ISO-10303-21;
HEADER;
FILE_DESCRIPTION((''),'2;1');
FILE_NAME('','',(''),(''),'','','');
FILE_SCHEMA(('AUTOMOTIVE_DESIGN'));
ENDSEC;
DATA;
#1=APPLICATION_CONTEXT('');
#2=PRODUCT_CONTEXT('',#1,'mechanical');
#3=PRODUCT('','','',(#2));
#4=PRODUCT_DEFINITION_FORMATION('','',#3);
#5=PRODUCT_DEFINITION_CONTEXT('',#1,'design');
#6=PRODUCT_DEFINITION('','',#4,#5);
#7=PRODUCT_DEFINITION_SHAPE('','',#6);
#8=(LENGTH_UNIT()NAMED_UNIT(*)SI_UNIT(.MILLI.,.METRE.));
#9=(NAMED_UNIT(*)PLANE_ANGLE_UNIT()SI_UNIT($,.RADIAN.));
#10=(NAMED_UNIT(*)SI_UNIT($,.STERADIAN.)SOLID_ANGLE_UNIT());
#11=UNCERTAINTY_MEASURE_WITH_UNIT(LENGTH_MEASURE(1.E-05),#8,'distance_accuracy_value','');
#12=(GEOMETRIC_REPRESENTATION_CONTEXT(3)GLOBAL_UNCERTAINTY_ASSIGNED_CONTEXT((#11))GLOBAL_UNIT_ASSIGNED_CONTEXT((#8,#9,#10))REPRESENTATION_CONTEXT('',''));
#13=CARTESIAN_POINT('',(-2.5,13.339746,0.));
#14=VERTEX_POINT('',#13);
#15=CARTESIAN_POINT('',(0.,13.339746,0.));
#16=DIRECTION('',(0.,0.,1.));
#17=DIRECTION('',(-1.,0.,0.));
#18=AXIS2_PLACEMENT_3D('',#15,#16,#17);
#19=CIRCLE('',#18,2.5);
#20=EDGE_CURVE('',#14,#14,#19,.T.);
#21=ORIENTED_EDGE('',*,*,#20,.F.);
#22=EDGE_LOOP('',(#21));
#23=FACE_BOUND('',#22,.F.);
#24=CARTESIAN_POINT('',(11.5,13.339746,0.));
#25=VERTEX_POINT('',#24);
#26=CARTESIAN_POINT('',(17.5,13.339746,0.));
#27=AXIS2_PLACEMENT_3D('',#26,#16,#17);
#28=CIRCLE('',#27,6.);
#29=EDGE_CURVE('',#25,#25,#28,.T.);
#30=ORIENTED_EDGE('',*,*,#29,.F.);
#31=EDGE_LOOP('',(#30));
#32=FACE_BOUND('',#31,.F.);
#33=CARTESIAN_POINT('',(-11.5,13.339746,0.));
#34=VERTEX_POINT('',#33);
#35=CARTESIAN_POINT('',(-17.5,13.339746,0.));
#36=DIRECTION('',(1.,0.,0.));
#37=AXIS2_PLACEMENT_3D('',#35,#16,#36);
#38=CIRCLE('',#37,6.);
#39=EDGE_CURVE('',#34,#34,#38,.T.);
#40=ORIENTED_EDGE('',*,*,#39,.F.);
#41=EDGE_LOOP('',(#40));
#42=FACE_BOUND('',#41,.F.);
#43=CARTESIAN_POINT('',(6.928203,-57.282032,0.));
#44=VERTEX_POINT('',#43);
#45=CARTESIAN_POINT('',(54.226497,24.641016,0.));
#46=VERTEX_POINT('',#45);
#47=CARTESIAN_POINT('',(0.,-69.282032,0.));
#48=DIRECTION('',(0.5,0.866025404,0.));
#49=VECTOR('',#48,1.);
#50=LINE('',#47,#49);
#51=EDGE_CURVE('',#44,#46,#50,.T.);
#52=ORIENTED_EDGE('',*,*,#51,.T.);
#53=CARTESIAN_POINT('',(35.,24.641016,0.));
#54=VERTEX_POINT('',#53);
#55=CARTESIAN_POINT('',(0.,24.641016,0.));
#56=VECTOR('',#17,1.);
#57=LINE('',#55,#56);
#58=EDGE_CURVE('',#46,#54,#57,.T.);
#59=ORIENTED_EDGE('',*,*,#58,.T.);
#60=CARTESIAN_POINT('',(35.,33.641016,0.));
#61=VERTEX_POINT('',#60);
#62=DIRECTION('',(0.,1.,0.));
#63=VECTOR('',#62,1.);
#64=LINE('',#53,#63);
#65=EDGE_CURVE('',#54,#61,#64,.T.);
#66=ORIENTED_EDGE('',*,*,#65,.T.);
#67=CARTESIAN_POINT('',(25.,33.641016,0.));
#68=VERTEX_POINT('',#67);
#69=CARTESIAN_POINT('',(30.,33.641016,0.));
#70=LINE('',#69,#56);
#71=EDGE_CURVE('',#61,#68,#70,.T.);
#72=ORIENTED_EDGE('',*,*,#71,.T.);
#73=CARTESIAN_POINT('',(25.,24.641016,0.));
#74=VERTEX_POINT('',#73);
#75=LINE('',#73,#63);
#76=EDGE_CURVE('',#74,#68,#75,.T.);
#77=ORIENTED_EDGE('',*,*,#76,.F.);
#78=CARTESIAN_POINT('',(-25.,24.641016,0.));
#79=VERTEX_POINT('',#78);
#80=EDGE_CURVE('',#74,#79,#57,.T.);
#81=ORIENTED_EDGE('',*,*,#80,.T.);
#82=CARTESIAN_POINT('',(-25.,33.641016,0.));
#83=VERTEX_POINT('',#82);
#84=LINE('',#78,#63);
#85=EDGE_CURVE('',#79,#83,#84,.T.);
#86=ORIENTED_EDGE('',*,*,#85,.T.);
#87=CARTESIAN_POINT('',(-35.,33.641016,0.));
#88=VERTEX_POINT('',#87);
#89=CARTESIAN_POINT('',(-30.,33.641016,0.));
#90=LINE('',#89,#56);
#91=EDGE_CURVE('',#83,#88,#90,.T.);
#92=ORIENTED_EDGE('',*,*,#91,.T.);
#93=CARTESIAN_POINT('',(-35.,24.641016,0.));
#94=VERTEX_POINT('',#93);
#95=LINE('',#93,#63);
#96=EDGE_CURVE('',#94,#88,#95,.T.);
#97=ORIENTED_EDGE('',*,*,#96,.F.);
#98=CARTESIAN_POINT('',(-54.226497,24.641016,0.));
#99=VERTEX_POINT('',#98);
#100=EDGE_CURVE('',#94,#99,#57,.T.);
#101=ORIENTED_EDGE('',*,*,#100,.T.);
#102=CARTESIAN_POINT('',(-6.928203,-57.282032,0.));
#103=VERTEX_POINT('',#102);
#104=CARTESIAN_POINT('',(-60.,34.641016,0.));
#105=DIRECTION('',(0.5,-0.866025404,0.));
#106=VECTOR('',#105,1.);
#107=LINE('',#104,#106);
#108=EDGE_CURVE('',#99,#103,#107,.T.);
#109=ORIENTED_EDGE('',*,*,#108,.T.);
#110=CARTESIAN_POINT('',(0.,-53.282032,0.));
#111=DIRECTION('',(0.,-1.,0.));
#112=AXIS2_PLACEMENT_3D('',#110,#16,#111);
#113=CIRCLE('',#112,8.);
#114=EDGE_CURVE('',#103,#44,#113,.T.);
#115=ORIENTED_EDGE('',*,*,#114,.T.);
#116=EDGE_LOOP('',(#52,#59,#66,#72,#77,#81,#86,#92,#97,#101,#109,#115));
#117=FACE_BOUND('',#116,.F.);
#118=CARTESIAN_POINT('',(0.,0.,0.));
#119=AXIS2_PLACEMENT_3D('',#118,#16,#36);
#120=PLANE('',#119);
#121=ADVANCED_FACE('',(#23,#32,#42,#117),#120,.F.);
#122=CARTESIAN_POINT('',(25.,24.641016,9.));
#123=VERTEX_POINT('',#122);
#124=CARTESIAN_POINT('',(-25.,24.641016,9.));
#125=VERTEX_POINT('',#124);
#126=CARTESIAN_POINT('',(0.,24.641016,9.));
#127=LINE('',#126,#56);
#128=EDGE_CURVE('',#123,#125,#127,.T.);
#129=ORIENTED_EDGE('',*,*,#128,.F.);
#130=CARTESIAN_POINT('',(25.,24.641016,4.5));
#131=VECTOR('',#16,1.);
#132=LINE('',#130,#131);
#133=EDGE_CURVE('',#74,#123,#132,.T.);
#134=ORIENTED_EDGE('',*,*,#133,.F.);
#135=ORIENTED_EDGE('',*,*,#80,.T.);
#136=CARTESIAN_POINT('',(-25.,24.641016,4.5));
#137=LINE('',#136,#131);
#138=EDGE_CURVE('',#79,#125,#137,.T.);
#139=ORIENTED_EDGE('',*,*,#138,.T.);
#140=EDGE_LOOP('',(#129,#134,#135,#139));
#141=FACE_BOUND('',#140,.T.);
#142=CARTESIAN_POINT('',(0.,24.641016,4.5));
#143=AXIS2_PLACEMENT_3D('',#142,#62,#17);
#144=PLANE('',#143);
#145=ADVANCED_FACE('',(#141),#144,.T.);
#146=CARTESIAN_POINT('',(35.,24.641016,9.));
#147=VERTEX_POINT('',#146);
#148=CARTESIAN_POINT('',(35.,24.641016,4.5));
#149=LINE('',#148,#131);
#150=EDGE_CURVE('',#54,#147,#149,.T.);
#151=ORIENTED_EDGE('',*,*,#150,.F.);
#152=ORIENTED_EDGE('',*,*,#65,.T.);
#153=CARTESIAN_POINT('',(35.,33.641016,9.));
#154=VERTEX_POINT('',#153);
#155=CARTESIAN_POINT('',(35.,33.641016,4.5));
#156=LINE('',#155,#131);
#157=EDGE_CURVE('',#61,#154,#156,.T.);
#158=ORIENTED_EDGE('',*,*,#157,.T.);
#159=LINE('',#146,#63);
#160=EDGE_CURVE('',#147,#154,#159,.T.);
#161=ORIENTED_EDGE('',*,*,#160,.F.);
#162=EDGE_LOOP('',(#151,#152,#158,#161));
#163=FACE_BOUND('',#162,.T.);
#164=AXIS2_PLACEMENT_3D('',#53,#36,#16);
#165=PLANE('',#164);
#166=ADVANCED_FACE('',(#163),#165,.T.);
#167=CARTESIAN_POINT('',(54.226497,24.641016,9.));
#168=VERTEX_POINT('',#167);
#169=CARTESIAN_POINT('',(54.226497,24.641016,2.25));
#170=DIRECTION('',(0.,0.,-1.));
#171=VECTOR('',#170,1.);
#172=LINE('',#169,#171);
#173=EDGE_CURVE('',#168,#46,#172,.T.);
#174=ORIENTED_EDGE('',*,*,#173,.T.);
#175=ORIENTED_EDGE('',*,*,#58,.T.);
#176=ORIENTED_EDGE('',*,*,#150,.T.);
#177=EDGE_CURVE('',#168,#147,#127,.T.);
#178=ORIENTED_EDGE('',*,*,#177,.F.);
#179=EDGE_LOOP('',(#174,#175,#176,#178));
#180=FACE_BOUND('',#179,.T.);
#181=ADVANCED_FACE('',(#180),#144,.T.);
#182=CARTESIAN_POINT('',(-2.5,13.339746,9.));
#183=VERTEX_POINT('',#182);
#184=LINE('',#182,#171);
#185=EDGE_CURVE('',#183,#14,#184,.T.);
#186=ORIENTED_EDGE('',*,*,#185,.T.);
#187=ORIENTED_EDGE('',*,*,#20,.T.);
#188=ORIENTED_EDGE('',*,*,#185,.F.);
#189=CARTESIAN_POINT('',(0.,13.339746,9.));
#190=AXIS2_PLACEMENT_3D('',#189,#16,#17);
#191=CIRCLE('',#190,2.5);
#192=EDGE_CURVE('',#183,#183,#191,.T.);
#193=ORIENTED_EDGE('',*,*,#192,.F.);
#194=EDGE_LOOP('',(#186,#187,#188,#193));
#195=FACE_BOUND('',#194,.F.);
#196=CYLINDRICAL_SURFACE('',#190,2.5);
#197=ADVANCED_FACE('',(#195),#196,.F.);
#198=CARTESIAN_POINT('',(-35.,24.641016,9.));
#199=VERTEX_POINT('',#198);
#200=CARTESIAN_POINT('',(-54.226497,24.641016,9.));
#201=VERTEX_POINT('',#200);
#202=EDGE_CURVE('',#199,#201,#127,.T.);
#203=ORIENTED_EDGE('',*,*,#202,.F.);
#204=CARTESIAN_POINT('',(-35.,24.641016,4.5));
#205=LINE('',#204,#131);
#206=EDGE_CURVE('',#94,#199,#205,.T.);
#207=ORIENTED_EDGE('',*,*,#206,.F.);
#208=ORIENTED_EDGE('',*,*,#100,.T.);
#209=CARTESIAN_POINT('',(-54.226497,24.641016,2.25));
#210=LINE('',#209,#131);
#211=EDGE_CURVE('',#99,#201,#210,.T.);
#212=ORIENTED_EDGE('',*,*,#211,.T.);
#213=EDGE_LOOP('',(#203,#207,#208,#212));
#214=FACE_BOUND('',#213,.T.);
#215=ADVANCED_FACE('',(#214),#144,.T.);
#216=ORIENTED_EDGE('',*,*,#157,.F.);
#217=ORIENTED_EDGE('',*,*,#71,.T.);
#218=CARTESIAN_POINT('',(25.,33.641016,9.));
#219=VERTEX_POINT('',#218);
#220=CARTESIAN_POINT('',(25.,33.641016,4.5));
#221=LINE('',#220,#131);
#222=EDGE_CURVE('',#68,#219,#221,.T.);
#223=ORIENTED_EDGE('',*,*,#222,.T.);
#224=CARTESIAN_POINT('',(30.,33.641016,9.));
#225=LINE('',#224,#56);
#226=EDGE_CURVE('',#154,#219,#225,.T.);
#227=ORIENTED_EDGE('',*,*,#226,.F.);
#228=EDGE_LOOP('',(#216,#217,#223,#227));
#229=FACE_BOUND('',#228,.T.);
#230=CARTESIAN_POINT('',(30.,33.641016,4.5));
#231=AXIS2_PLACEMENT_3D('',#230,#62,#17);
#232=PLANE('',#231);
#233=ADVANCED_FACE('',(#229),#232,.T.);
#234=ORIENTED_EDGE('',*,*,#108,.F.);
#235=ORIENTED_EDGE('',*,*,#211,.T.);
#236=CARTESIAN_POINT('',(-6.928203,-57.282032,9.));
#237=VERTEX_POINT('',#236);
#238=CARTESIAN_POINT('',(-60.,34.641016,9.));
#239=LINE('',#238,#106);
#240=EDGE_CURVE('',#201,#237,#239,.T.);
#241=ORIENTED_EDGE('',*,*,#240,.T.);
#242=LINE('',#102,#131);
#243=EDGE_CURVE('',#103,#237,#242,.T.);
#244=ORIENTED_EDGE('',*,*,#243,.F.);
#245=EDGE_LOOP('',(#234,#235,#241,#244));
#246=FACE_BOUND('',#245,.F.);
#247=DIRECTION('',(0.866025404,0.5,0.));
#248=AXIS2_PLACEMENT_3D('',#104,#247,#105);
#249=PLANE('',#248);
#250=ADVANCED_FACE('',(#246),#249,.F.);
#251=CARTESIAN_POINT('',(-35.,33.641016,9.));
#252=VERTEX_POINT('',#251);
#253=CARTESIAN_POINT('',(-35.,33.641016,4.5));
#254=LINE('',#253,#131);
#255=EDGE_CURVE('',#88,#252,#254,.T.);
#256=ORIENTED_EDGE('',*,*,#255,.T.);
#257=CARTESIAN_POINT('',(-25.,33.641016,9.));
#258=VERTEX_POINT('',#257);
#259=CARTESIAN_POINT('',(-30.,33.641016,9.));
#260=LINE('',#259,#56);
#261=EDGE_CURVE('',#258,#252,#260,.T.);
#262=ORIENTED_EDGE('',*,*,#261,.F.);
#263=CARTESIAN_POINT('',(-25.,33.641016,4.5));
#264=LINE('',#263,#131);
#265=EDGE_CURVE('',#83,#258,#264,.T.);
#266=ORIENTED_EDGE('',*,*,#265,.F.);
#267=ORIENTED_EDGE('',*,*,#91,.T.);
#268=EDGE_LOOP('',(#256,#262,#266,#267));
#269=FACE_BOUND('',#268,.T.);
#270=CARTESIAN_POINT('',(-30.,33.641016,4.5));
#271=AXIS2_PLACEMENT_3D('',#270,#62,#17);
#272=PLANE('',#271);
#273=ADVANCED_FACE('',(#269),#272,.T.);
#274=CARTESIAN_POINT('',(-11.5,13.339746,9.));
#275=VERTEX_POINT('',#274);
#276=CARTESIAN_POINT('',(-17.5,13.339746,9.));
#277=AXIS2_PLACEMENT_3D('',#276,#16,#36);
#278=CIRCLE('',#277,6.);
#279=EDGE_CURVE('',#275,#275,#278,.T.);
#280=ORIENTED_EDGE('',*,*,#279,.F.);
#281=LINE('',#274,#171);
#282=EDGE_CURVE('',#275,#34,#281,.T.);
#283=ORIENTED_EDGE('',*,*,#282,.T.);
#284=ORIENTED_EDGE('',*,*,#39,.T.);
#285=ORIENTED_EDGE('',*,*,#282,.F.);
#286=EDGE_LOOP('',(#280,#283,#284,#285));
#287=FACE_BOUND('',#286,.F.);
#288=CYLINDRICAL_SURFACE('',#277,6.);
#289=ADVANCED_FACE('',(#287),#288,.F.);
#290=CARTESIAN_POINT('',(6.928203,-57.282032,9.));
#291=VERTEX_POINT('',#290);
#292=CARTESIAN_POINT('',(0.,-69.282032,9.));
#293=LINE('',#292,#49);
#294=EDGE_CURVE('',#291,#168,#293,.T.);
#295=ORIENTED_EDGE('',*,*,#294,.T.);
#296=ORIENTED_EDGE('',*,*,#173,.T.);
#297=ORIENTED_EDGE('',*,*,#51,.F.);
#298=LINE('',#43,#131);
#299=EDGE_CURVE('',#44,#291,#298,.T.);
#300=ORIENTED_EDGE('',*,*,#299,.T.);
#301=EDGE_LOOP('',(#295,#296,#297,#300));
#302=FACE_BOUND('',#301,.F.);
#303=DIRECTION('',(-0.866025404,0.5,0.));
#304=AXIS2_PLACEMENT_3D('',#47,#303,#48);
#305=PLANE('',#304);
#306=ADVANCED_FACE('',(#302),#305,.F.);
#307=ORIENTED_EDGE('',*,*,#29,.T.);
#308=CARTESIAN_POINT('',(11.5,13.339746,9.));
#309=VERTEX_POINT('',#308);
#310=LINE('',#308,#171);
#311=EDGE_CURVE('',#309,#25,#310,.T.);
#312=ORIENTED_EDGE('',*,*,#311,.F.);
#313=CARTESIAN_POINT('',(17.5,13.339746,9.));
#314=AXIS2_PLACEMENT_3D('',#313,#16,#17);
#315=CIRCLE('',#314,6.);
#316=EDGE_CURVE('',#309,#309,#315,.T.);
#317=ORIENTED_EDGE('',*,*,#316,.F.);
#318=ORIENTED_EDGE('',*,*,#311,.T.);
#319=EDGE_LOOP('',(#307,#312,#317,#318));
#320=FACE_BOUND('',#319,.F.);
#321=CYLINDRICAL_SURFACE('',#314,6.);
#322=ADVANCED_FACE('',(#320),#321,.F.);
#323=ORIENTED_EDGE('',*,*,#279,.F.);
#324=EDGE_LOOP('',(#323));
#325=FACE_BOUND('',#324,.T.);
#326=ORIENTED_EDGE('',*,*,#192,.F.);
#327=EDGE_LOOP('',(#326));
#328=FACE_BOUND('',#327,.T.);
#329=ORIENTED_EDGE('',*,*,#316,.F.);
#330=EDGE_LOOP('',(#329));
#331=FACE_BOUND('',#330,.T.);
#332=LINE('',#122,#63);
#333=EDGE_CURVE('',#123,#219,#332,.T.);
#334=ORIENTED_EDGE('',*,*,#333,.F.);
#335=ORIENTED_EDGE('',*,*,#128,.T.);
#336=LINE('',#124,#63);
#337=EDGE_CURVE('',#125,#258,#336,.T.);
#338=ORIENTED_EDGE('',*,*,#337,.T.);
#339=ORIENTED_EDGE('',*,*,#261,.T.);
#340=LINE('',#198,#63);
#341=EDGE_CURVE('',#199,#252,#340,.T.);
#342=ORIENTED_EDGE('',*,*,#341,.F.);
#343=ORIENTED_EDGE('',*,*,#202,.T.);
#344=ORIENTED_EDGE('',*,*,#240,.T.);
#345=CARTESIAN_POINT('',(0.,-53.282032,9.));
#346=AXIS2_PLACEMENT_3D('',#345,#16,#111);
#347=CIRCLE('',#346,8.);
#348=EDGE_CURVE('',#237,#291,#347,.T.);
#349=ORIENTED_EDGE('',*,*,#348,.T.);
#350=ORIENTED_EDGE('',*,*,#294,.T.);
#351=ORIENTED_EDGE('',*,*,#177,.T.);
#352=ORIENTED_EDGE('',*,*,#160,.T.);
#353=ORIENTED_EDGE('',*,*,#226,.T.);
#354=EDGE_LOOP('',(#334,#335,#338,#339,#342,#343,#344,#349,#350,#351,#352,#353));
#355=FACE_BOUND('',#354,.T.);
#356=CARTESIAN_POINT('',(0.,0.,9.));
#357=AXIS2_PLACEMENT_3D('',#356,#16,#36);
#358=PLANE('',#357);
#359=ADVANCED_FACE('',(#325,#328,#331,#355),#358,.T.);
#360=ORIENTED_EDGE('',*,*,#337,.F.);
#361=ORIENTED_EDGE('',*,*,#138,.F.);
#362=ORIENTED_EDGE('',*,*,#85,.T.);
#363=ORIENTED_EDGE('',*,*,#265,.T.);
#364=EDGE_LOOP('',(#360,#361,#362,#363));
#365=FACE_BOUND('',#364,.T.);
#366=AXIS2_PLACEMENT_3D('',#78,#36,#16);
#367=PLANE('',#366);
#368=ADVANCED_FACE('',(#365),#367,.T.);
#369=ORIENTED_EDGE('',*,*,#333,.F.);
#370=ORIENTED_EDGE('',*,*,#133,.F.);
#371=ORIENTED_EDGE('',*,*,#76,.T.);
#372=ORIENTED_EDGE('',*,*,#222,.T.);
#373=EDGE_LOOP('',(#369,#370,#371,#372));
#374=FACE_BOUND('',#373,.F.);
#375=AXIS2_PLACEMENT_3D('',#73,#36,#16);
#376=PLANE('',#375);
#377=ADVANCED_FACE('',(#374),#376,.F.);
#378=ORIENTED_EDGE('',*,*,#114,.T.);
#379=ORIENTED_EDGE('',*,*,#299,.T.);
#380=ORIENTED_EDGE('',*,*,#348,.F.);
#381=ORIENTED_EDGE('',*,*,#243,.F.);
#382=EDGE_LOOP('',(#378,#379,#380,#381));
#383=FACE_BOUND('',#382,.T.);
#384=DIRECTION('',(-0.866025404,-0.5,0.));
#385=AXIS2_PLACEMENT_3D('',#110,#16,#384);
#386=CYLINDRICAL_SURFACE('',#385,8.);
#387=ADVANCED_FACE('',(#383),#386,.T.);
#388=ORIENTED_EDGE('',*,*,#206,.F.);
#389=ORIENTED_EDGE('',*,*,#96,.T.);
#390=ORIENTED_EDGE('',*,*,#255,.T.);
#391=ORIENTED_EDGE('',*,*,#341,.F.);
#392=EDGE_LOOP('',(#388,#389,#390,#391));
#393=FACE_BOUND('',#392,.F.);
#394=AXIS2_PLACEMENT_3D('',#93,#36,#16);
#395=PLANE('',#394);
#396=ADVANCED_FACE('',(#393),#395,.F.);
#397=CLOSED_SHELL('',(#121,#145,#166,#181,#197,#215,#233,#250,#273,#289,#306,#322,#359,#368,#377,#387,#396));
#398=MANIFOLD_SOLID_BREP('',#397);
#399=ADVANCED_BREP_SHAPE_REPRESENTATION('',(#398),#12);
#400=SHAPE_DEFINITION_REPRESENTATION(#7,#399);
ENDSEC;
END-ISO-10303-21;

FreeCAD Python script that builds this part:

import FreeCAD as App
import Part
import Sketcher

V = App.Vector
Q = App.Units.Quantity


def edges_at(feature, points):
    """Names of the edges that pass closest to the given points."""
    edges = feature.Shape.Edges
    near = lambda p: min(range(len(edges)), key=lambda i: edges[i].distToShape(Part.Vertex(*p))[0])
    return sorted({f"Edge{near(p) + 1}" for p in points})


def add_polygon(sketch, points):
    """Adds a closed chain of lines whose ends are joined by coincident constraints."""
    first, n = sketch.GeometryCount, len(points)
    for a, b in zip(points, points[1:] + points[:1]):
        sketch.addGeometry(Part.LineSegment(App.Vector(*a, 0), App.Vector(*b, 0)), False)
    for i in range(n):
        sketch.addConstraint(Sketcher.Constraint("Coincident", first + i, 2, first + (i + 1) % n, 1))

doc = App.newDocument("Part")
body = doc.addObject("PartDesign::Body", "Body")

sketch1 = doc.addObject("Sketcher::SketchObject", "Sketch")
body.addObject(sketch1)
sketch1.AttachmentSupport = (doc.XY_Plane, [""])
sketch1.MapMode = "FlatFace"
add_polygon(sketch1, [(60, 34.641016), (-60, 34.641016), (0, -69.282032)])
sketch1.addConstraint(Sketcher.Constraint("Horizontal", 0))
sketch1.addConstraint(Sketcher.Constraint("PointOnObject", 1, 2, -2))
sketch1.addConstraint(Sketcher.Constraint("Equal", 1, 2))
sketch1.addConstraint(Sketcher.Constraint("DistanceX", 0, 2, 0, 1, 120.0))
sketch1.addConstraint(Sketcher.Constraint("Angle", 1, Q("-60 deg")))
sketch1.addConstraint(Sketcher.Constraint("DistanceY", -1, 1, 0, 2, 34.641016))
pad1 = doc.addObject("PartDesign::Pad", "Pad")
body.addObject(pad1)
pad1.Profile = sketch1
pad1.Length = 9
doc.recompute()

fillet = doc.addObject("PartDesign::Fillet", "Fillet")
body.addObject(fillet)
fillet.Base = (pad1, edges_at(pad1, [(0, -69.282, 4.5)]))
fillet.Radius = 8

sketch2 = doc.addObject("Sketcher::SketchObject", "Sketch001")
body.addObject(sketch2)
sketch2.AttachmentSupport = (doc.XY_Plane, [""])
sketch2.MapMode = "FlatFace"
sketch2.AttachmentOffset = App.Placement(V(0, 0, 9), App.Rotation())
sketch2.addGeometry(Part.Circle(V(17.5, 13.339746, 0), V(0, 0, 1), 6), False)
sketch2.addGeometry(Part.Circle(V(-17.5, 13.339746, 0), V(0, 0, 1), 6), False)
sketch2.addConstraint(Sketcher.Constraint("Equal", 0, 1))
sketch2.addConstraint(Sketcher.Constraint("Symmetric", 0, 3, 1, 3, -2))
sketch2.addConstraint(Sketcher.Constraint("Diameter", 0, 12.0))
sketch2.addConstraint(Sketcher.Constraint("DistanceX", 1, 3, 0, 3, 35.0))
sketch2.addConstraint(Sketcher.Constraint("DistanceY", -1, 1, 0, 3, 13.339746))
pocket1 = doc.addObject("PartDesign::Pocket", "Pocket")
body.addObject(pocket1)
pocket1.Profile = sketch2
pocket1.Length = 25

sketch3 = doc.addObject("Sketcher::SketchObject", "Sketch002")
body.addObject(sketch3)
sketch3.AttachmentSupport = (doc.XZ_Plane, [""])
sketch3.MapMode = "FlatFace"
sketch3.AttachmentOffset = App.Placement(V(0, 0, -34.641016), App.Rotation())
add_polygon(sketch3, [(60, 9), (60, 0), (-60, 0), (-60, 9)])
sketch3.addConstraint(Sketcher.Constraint("Vertical", 0))
sketch3.addConstraint(Sketcher.Constraint("Horizontal", 1))
sketch3.addConstraint(Sketcher.Constraint("Vertical", 2))
sketch3.addConstraint(Sketcher.Constraint("Horizontal", 3))
sketch3.addConstraint(Sketcher.Constraint("Symmetric", 0, 2, 1, 2, -1, 1))
sketch3.addConstraint(Sketcher.Constraint("DistanceX", 1, 2, 1, 1, 120.0))
sketch3.addConstraint(Sketcher.Constraint("DistanceY", 0, 2, 0, 1, 9.0))
pocket2 = doc.addObject("PartDesign::Pocket", "Pocket001")
body.addObject(pocket2)
pocket2.Profile = sketch3
pocket2.Length = 10
pocket2.Reversed = True

sketch4 = doc.addObject("Sketcher::SketchObject", "Sketch003")
body.addObject(sketch4)
sketch4.AttachmentSupport = (doc.XZ_Plane, [""])
sketch4.MapMode = "FlatFace"
sketch4.AttachmentOffset = App.Placement(V(0, 0, -24.641016), App.Rotation())
add_polygon(sketch4, [(35, 9), (35, 0), (25, 0), (25, 9)])
add_polygon(sketch4, [(-25, 9), (-25, 0), (-35, 0), (-35, 9)])
sketch4.addConstraint(Sketcher.Constraint("Vertical", 0))
sketch4.addConstraint(Sketcher.Constraint("Horizontal", 1))
sketch4.addConstraint(Sketcher.Constraint("Vertical", 2))
sketch4.addConstraint(Sketcher.Constraint("Horizontal", 3))
sketch4.addConstraint(Sketcher.Constraint("Vertical", 4))
sketch4.addConstraint(Sketcher.Constraint("Horizontal", 5))
sketch4.addConstraint(Sketcher.Constraint("Vertical", 6))
sketch4.addConstraint(Sketcher.Constraint("Horizontal", 7))
sketch4.addConstraint(Sketcher.Constraint("Symmetric", 1, 2, 4, 2, -1, 1))
sketch4.addConstraint(Sketcher.Constraint("Symmetric", 0, 2, 5, 2, -2))
sketch4.addConstraint(Sketcher.Constraint("Horizontal", 3, 2, 6, 2))
sketch4.addConstraint(Sketcher.Constraint("DistanceX", 1, 2, 1, 1, 10.0))
sketch4.addConstraint(Sketcher.Constraint("DistanceY", 0, 2, 0, 1, 9.0))
sketch4.addConstraint(Sketcher.Constraint("DistanceX", -1, 1, 0, 2, 35.0))
pad2 = doc.addObject("PartDesign::Pad", "Pad001")
body.addObject(pad2)
pad2.Profile = sketch4
pad2.Length = 9
pad2.Reversed = True

sketch5 = doc.addObject("Sketcher::SketchObject", "Sketch004")
body.addObject(sketch5)
sketch5.AttachmentSupport = (doc.XY_Plane, [""])
sketch5.MapMode = "FlatFace"
sketch5.AttachmentOffset = App.Placement(V(0, 0, 9), App.Rotation())
sketch5.addGeometry(Part.Circle(V(0, 13.339746, 0), V(0, 0, 1), 2.5), False)
sketch5.addConstraint(Sketcher.Constraint("PointOnObject", 0, 3, -2))
sketch5.addConstraint(Sketcher.Constraint("Diameter", 0, 5.0))
sketch5.addConstraint(Sketcher.Constraint("DistanceY", -1, 1, 0, 3, 13.339746))
pocket3 = doc.addObject("PartDesign::Pocket", "Pocket002")
body.addObject(pocket3)
pocket3.Profile = sketch5
pocket3.Length = 25

doc.recompute()
